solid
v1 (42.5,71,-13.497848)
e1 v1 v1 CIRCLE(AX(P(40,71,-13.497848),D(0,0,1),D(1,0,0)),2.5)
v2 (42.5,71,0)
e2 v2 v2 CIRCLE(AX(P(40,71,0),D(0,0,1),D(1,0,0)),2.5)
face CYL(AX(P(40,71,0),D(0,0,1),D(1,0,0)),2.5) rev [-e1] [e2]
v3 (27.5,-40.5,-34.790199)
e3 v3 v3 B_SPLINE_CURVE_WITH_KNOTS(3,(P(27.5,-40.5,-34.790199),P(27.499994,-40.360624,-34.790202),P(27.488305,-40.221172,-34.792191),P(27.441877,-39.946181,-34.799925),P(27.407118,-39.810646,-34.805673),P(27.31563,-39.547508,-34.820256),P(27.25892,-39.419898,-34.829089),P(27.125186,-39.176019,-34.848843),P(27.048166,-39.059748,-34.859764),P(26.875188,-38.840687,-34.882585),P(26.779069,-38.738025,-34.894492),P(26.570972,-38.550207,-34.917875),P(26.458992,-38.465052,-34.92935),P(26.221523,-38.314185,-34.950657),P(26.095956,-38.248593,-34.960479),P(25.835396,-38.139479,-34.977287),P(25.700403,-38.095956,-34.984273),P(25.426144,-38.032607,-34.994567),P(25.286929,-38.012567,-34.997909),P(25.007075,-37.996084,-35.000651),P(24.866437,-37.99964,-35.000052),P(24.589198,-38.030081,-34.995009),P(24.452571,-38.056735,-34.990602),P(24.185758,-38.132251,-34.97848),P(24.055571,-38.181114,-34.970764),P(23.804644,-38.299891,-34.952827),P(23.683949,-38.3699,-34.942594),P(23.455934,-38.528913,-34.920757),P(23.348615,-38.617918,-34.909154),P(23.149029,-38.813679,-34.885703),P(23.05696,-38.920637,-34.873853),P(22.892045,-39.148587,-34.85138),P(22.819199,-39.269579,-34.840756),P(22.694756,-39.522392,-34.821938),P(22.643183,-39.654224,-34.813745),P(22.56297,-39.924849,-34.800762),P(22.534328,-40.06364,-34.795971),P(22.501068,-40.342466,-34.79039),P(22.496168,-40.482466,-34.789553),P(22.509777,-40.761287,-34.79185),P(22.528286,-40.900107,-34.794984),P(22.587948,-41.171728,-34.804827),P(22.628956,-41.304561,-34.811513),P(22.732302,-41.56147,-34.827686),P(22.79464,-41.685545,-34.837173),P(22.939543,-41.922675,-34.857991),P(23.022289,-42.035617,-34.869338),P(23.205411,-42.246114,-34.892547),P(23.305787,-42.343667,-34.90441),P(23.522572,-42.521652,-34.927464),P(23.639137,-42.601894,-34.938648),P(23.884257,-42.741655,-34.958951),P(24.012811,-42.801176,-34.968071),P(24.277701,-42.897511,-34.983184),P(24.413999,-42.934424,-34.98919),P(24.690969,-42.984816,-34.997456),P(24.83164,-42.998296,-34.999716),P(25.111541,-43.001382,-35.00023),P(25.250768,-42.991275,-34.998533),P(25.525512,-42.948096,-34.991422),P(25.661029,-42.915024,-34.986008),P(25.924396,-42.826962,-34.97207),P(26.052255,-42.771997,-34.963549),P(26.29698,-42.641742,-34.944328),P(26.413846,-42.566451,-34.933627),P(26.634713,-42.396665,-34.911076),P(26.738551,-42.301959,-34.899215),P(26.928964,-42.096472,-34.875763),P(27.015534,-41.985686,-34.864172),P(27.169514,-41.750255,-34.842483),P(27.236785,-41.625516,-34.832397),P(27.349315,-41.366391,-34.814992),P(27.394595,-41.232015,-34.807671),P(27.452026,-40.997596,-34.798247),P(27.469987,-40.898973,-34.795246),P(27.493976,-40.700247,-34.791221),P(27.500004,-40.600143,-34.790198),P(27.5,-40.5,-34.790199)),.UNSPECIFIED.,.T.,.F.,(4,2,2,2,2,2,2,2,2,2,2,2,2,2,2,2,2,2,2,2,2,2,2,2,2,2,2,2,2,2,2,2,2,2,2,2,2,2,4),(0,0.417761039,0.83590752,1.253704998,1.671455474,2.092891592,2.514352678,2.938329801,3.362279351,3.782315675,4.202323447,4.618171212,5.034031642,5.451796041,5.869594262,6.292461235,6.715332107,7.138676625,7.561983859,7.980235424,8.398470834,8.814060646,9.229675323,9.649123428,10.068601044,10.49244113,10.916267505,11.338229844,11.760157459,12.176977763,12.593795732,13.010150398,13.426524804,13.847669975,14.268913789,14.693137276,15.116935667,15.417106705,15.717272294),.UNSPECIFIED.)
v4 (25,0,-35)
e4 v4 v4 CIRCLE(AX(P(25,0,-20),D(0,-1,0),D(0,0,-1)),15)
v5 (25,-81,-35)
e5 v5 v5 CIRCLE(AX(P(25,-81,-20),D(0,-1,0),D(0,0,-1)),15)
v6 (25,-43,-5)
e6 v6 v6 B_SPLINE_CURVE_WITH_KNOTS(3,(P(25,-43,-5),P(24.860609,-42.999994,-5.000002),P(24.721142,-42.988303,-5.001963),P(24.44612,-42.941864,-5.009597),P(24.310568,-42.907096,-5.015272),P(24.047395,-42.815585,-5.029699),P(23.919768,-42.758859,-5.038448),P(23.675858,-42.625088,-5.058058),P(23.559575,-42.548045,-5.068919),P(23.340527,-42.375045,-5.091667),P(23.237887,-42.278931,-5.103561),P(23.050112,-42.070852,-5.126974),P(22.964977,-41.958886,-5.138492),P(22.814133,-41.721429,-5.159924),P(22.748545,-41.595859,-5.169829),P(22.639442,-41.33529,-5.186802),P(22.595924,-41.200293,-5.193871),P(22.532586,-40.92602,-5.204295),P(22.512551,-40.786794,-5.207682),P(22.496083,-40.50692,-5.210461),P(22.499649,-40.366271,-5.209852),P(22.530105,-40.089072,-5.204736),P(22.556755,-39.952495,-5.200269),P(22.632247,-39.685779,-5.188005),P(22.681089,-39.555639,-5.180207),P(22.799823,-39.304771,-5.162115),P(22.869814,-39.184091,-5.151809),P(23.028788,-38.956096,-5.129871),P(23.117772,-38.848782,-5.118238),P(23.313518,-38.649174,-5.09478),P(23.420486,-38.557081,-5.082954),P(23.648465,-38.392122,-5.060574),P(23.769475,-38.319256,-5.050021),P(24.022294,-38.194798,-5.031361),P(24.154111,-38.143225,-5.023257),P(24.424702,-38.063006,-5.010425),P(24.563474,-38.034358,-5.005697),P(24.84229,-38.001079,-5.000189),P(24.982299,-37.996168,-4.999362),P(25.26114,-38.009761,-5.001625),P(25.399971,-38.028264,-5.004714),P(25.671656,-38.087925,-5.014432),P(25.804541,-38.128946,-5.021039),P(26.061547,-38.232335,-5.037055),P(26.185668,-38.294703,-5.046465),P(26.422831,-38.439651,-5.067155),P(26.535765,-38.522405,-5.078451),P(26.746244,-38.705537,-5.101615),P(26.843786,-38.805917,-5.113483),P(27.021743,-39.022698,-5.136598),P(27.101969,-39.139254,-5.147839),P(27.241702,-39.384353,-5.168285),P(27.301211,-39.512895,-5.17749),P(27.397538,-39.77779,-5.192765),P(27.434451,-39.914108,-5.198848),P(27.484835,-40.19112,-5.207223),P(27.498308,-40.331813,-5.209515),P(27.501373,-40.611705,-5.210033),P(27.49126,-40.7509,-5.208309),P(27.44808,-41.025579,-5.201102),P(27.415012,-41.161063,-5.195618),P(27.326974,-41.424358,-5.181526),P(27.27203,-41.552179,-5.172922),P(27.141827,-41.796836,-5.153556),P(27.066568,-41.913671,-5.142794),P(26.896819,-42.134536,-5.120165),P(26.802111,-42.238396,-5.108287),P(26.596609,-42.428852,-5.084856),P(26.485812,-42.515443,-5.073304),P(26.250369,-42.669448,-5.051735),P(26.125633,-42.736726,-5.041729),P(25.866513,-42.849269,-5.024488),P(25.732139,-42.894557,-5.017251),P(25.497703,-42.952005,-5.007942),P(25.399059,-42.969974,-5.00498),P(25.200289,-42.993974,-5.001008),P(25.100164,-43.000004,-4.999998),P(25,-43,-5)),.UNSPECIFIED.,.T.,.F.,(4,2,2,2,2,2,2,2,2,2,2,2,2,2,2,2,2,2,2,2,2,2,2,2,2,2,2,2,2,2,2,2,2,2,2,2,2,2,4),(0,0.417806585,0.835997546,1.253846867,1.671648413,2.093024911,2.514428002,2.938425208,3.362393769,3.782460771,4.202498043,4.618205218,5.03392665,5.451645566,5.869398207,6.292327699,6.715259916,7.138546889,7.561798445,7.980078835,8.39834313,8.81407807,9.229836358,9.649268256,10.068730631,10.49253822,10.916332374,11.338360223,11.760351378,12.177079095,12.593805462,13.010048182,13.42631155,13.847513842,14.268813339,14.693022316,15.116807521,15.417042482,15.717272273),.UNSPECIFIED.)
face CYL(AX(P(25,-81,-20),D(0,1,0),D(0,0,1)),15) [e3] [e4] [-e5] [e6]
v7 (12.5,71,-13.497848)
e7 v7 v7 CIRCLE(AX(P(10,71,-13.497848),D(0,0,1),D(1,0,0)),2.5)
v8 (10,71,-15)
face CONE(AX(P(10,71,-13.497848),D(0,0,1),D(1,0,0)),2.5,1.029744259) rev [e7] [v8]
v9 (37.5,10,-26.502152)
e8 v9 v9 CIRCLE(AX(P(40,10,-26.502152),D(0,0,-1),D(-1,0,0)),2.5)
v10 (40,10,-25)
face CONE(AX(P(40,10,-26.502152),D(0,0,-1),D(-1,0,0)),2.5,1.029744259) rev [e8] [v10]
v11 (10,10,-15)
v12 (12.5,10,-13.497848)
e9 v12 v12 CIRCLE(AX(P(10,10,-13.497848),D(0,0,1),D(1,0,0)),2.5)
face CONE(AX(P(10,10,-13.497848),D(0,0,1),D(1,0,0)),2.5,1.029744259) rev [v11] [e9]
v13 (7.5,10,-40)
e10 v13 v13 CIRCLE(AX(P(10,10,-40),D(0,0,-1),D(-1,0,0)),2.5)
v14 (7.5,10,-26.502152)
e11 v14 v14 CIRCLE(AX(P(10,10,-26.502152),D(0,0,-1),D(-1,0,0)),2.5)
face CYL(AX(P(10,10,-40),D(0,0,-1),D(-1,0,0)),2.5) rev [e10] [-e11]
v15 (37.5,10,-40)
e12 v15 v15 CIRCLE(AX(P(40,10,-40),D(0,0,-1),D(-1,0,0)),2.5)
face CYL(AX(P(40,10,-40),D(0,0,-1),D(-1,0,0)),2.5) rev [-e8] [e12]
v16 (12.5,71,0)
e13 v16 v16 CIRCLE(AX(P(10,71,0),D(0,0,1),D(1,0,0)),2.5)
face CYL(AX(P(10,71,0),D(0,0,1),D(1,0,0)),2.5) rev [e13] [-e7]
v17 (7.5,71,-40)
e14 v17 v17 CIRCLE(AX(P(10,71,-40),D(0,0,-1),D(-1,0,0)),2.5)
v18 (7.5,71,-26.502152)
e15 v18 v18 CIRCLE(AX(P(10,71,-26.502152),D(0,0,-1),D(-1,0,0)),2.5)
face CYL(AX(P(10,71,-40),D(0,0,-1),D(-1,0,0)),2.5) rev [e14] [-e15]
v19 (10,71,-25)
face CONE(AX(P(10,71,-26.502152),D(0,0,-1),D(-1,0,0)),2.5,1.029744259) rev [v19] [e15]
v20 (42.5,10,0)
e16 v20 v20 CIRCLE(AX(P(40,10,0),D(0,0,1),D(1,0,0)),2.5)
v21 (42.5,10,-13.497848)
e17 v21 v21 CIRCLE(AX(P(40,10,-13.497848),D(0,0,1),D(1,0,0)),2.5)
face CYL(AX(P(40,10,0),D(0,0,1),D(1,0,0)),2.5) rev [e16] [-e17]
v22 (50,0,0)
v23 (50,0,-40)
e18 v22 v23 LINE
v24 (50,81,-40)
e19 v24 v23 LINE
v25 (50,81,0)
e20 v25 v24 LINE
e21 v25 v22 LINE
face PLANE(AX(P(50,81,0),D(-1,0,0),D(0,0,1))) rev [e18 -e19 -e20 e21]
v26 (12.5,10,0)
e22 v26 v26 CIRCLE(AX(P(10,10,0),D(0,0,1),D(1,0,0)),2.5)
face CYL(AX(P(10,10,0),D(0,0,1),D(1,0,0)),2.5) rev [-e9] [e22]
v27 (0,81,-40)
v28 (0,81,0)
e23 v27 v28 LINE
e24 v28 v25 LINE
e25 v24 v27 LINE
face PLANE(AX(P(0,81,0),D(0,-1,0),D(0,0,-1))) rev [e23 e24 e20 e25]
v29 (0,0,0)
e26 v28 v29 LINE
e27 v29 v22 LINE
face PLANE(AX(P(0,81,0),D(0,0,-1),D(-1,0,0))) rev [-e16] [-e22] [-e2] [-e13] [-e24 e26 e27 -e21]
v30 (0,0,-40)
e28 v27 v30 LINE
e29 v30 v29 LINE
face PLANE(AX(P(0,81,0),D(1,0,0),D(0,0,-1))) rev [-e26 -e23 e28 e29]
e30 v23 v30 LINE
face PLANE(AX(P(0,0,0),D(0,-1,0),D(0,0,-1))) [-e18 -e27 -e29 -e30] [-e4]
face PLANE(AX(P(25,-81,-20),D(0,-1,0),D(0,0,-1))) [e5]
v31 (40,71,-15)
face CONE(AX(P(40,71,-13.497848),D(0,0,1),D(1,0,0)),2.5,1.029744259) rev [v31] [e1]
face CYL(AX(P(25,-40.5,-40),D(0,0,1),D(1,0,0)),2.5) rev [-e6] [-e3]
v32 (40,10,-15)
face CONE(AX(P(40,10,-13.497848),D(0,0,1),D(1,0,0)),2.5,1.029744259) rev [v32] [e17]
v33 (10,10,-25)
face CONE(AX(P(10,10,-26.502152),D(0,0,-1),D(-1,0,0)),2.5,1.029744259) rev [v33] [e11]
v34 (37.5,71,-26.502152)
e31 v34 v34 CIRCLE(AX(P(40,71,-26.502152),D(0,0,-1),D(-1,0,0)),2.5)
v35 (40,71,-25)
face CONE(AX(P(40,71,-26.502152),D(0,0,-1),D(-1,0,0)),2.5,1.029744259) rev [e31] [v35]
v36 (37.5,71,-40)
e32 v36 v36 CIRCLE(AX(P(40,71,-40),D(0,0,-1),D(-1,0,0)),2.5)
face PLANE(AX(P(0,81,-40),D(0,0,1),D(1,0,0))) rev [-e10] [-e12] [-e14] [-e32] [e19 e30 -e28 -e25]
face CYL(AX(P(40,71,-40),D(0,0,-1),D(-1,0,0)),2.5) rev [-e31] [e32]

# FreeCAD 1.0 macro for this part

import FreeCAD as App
import Part
import Sketcher

V = App.Vector


def add_polygon(sketch, points):
    """Adds a closed chain of lines whose ends are joined by coincident constraints."""
    first, n = sketch.GeometryCount, len(points)
    for a, b in zip(points, points[1:] + points[:1]):
        sketch.addGeometry(Part.LineSegment(App.Vector(*a, 0), App.Vector(*b, 0)), False)
    for i in range(n):
        sketch.addConstraint(Sketcher.Constraint("Coincident", first + i, 2, first + (i + 1) % n, 1))

doc = App.newDocument("Part")
params = doc.addObject("Spreadsheet::Sheet", "Params")
for row, (alias, value) in enumerate([
    ("sketch1_width", "50 mm"),
    ("sketch1_height", "40 mm"),
    ("pad1_length", "81 mm"),
    ("sketch2_diameter", "30 mm"),
    ("pad2_length", "81 mm"),
    ("sketch3_diameter", "5 mm"),
    ("sketch4_diameter", "5 mm"),
    ("hole_diameter", "5 mm"),
    ("hole_depth", "13.497848 mm"),
    ("sketch5_diameter", "5 mm"),
    ("hole2_diameter", "5 mm"),
    ("hole2_depth", "13.497848 mm"),
], start=1):
    params.set(f"A{row}", alias)
    params.set(f"B{row}", "=" + value)
    params.setAlias(f"B{row}", alias)

body = doc.addObject("PartDesign::Body", "Body")

sketch1 = body.newObject("Sketcher::SketchObject", "Sketch")
sketch1.AttachmentSupport = (doc.getObject("XZ_Plane"), [""])
sketch1.MapMode = "FlatFace"
add_polygon(sketch1, [(0, -40), (0, 0), (50, 0), (50, -40)])
sketch1.addConstraint([
    Sketcher.Constraint("Vertical", 0),
    Sketcher.Constraint("Horizontal", 1),
    Sketcher.Constraint("Vertical", 2),
    Sketcher.Constraint("Horizontal", 3),
    Sketcher.Constraint("Coincident", 0, 2, -1, 1),
    Sketcher.Constraint("DistanceX", 1, 1, 1, 2, 50.0),
    Sketcher.Constraint("DistanceY", 0, 1, 0, 2, 40.0),
])
sketch1.setExpression("Constraints[9]", "Params.sketch1_width")
sketch1.setExpression("Constraints[10]", "Params.sketch1_height")
pad1 = body.newObject("PartDesign::Pad", "Pad")
pad1.Profile = sketch1
pad1.setExpression("Length", "Params.pad1_length")
pad1.Reversed = True

sketch2 = body.newObject("Sketcher::SketchObject", "Sketch001")
sketch2.AttachmentSupport = (doc.getObject("XZ_Plane"), [""])
sketch2.MapMode = "FlatFace"
sketch2.addGeometry(Part.Circle(V(25, -20, 0), V(0, 0, 1), 15), False)
sketch2.addConstraint([
    Sketcher.Constraint("Diameter", 0, 30.0),
    Sketcher.Constraint("DistanceX", -1, 1, 0, 3, 25.0),
    Sketcher.Constraint("DistanceY", 0, 3, -1, 1, 20.0),
])
sketch2.setExpression("Constraints[0]", "Params.sketch2_diameter")
pad2 = body.newObject("PartDesign::Pad", "Pad001")
pad2.Profile = sketch2
pad2.setExpression("Length", "Params.pad2_length")

sketch3 = body.newObject("Sketcher::SketchObject", "Sketch002")
sketch3.AttachmentSupport = (doc.getObject("XY_Plane"), [""])
sketch3.MapMode = "FlatFace"
sketch3.addGeometry(Part.Circle(V(25, -40.5, 0), V(0, 0, 1), 2.5), False)
sketch3.addConstraint([
    Sketcher.Constraint("Diameter", 0, 5.0),
    Sketcher.Constraint("DistanceX", -1, 1, 0, 3, 25.0),
    Sketcher.Constraint("DistanceY", 0, 3, -1, 1, 40.5),
])
sketch3.setExpression("Constraints[0]", "Params.sketch3_diameter")
pocket1 = body.newObject("PartDesign::Pocket", "Pocket")
pocket1.Profile = sketch3
pocket1.Type = "ThroughAll"

sketch4 = body.newObject("Sketcher::SketchObject", "Sketch003")
sketch4.AttachmentSupport = (doc.getObject("XY_Plane"), [""])
sketch4.MapMode = "FlatFace"
sketch4.addGeometry([
    Part.Circle(V(10, 10, 0), V(0, 0, 1), 2.5),
    Part.Circle(V(40, 10, 0), V(0, 0, 1), 2.5),
    Part.Circle(V(40, 71, 0), V(0, 0, 1), 2.5),
    Part.Circle(V(10, 71, 0), V(0, 0, 1), 2.5),
], False)
sketch4.addConstraint([
    Sketcher.Constraint("Equal", 0, 1),
    Sketcher.Constraint("Equal", 1, 2),
    Sketcher.Constraint("Equal", 2, 3),
    Sketcher.Constraint("Horizontal", 0, 3, 1, 3),
    Sketcher.Constraint("Horizontal", 2, 3, 3, 3),
    Sketcher.Constraint("Vertical", 1, 3, 2, 3),
    Sketcher.Constraint("Vertical", 0, 3, 3, 3),
    Sketcher.Constraint("Diameter", 0, 5.0),
    Sketcher.Constraint("DistanceX", -1, 1, 0, 3, 10.0),
    Sketcher.Constraint("DistanceY", -1, 1, 0, 3, 10.0),
    Sketcher.Constraint("DistanceX", -1, 1, 1, 3, 40.0),
    Sketcher.Constraint("DistanceY", -1, 1, 2, 3, 71.0),
])
sketch4.setExpression("Constraints[7]", "Params.sketch4_diameter")
doc.recompute()
hole = body.newObject("PartDesign::Hole", "Hole")
hole.Profile = sketch4
hole.ThreadType = "None"
hole.setExpression("Diameter", "Params.hole_diameter")
hole.DepthType = "Dimension"
hole.setExpression("Depth", "Params.hole_depth")
hole.DrillPoint = "Angled"
hole.DrillPointAngle = 118

sketch5 = body.newObject("Sketcher::SketchObject", "Sketch004")
sketch5.AttachmentSupport = (doc.getObject("XY_Plane"), [""])
sketch5.MapMode = "FlatFace"
sketch5.AttachmentOffset = App.Placement(V(0, 0, -40), App.Rotation())
sketch5.addGeometry([
    Part.Circle(V(40, 10, 0), V(0, 0, 1), 2.5),
    Part.Circle(V(10, 10, 0), V(0, 0, 1), 2.5),
    Part.Circle(V(10, 71, 0), V(0, 0, 1), 2.5),
    Part.Circle(V(40, 71, 0), V(0, 0, 1), 2.5),
], False)
sketch5.addConstraint([
    Sketcher.Constraint("Equal", 0, 1),
    Sketcher.Constraint("Equal", 1, 2),
    Sketcher.Constraint("Equal", 2, 3),
    Sketcher.Constraint("Horizontal", 0, 3, 1, 3),
    Sketcher.Constraint("Horizontal", 2, 3, 3, 3),
    Sketcher.Constraint("Vertical", 1, 3, 2, 3),
    Sketcher.Constraint("Vertical", 0, 3, 3, 3),
    Sketcher.Constraint("Diameter", 0, 5.0),
    Sketcher.Constraint("DistanceX", -1, 1, 0, 3, 40.0),
    Sketcher.Constraint("DistanceY", -1, 1, 0, 3, 10.0),
    Sketcher.Constraint("DistanceX", -1, 1, 1, 3, 10.0),
    Sketcher.Constraint("DistanceY", -1, 1, 2, 3, 71.0),
])
sketch5.setExpression("Constraints[7]", "Params.sketch5_diameter")
doc.recompute()
hole2 = body.newObject("PartDesign::Hole", "Hole001")
hole2.Profile = sketch5
hole2.ThreadType = "None"
hole2.setExpression("Diameter", "Params.hole2_diameter")
hole2.DepthType = "Dimension"
hole2.setExpression("Depth", "Params.hole2_depth")
hole2.DrillPoint = "Angled"
hole2.DrillPointAngle = 118
hole2.Reversed = True

doc.recompute()
